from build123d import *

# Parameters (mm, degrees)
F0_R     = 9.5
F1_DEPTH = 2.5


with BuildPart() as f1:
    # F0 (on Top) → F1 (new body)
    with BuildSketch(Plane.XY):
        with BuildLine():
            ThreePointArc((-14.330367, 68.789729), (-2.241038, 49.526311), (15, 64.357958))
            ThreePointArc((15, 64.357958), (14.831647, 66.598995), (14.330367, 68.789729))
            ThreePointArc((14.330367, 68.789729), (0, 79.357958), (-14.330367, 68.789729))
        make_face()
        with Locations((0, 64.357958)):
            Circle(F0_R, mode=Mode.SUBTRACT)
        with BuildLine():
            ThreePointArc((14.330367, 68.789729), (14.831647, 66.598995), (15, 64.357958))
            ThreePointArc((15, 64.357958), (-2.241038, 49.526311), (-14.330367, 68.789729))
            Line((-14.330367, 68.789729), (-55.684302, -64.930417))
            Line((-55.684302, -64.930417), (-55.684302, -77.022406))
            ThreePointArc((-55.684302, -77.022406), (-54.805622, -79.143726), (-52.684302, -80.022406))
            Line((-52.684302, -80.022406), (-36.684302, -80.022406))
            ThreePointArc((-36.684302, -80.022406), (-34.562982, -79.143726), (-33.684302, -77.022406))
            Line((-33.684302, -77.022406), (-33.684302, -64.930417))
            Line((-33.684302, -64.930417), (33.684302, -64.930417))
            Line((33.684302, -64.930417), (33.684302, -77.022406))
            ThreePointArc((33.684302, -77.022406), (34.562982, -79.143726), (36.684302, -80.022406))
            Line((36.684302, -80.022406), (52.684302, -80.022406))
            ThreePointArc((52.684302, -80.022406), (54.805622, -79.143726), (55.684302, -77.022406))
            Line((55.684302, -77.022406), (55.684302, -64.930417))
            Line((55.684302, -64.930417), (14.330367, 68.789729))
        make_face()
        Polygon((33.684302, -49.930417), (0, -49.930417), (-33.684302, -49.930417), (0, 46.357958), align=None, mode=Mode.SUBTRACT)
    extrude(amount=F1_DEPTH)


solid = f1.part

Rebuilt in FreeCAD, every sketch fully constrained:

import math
import FreeCAD as App
import Part
import Sketcher


def add_polygon(sketch, points):
    """Adds a closed chain of lines whose ends are joined by coincident constraints."""
    first, n = sketch.GeometryCount, len(points)
    for a, b in zip(points, points[1:] + points[:1]):
        sketch.addGeometry(Part.LineSegment(App.Vector(*a, 0), App.Vector(*b, 0)), False)
    for i in range(n):
        sketch.addConstraint(Sketcher.Constraint("Coincident", first + i, 2, first + (i + 1) % n, 1))

doc = App.newDocument("Part")
body = doc.addObject("PartDesign::Body", "Body")

# Sketch on XY plane
sketch1 = body.newObject("Sketcher::SketchObject", "Sketch")
sketch1.AttachmentSupport = (doc.getObject("XY_Plane"), [""])
sketch1.MapMode = "FlatFace"
sketch1.addGeometry(Part.ArcOfCircle(Part.Circle(App.Vector(0, 64.357957, 0), App.Vector(0, 0, 1), 15.000001), math.radians(17.184609), math.radians(162.815391)), False)  # 0
sketch1.addGeometry(Part.LineSegment(App.Vector(-14.330367, 68.789729, 0), App.Vector(-55.684302, -64.930417, 0)), False)  # 1
sketch1.addGeometry(Part.LineSegment(App.Vector(-55.684302, -64.930417, 0), App.Vector(-55.684302, -77.022406, 0)), False)  # 2
sketch1.addGeometry(Part.ArcOfCircle(Part.Circle(App.Vector(-52.684301, -77.022405, 0), App.Vector(0, 0, 1), 3.000001), math.radians(-179.999978), math.radians(-90.000022)), False)  # 3
sketch1.addGeometry(Part.LineSegment(App.Vector(-52.684302, -80.022406, 0), App.Vector(-36.684302, -80.022406, 0)), False)  # 4
sketch1.addGeometry(Part.ArcOfCircle(Part.Circle(App.Vector(-36.684303, -77.022405, 0), App.Vector(0, 0, 1), 3.000001), math.radians(-89.999978), math.radians(-0.000022)), False)  # 5
sketch1.addGeometry(Part.LineSegment(App.Vector(-33.684302, -77.022406, 0), App.Vector(-33.684302, -64.930417, 0)), False)  # 6
sketch1.addGeometry(Part.LineSegment(App.Vector(-33.684302, -64.930417, 0), App.Vector(33.684302, -64.930417, 0)), False)  # 7
sketch1.addGeometry(Part.LineSegment(App.Vector(33.684302, -64.930417, 0), App.Vector(33.684302, -77.022406, 0)), False)  # 8
sketch1.addGeometry(Part.ArcOfCircle(Part.Circle(App.Vector(36.684303, -77.022405, 0), App.Vector(0, 0, 1), 3.000001), math.radians(-179.999978), math.radians(-90.000022)), False)  # 9
sketch1.addGeometry(Part.LineSegment(App.Vector(36.684302, -80.022406, 0), App.Vector(52.684302, -80.022406, 0)), False)  # 10
sketch1.addGeometry(Part.ArcOfCircle(Part.Circle(App.Vector(52.684301, -77.022405, 0), App.Vector(0, 0, 1), 3.000001), math.radians(-89.999978), math.radians(-0.000022)), False)  # 11
sketch1.addGeometry(Part.LineSegment(App.Vector(55.684302, -77.022406, 0), App.Vector(55.684302, -64.930417, 0)), False)  # 12
sketch1.addGeometry(Part.LineSegment(App.Vector(55.684302, -64.930417, 0), App.Vector(14.330367, 68.789729, 0)), False)  # 13
add_polygon(sketch1, [(0, 46.357958), (33.684302, -49.930417), (-33.684302, -49.930417)])  # lines 14-16
sketch1.addGeometry(Part.Circle(App.Vector(0, 64.357958, 0), App.Vector(0, 0, 1), 9.5), False)  # 17
sketch1.addConstraint(Sketcher.Constraint("Tangent", 0, 2, 1, 1))
sketch1.addConstraint(Sketcher.Constraint("Coincident", 1, 2, 2, 1))
sketch1.addConstraint(Sketcher.Constraint("Tangent", 2, 2, 3, 1))
sketch1.addConstraint(Sketcher.Constraint("Tangent", 3, 2, 4, 1))
sketch1.addConstraint(Sketcher.Constraint("Tangent", 4, 2, 5, 1))
sketch1.addConstraint(Sketcher.Constraint("Tangent", 5, 2, 6, 1))
sketch1.addConstraint(Sketcher.Constraint("Coincident", 6, 2, 7, 1))
sketch1.addConstraint(Sketcher.Constraint("Coincident", 7, 2, 8, 1))
sketch1.addConstraint(Sketcher.Constraint("Tangent", 8, 2, 9, 1))
sketch1.addConstraint(Sketcher.Constraint("Tangent", 9, 2, 10, 1))
sketch1.addConstraint(Sketcher.Constraint("Tangent", 10, 2, 11, 1))
sketch1.addConstraint(Sketcher.Constraint("Tangent", 11, 2, 12, 1))
sketch1.addConstraint(Sketcher.Constraint("Coincident", 12, 2, 13, 1))
sketch1.addConstraint(Sketcher.Constraint("Tangent", 13, 2, 0, 1))
sketch1.addConstraint(Sketcher.Constraint("Vertical", 2))
sketch1.addConstraint(Sketcher.Constraint("Horizontal", 4))
sketch1.addConstraint(Sketcher.Constraint("Vertical", 6))
sketch1.addConstraint(Sketcher.Constraint("Horizontal", 7))
sketch1.addConstraint(Sketcher.Constraint("Vertical", 8))
sketch1.addConstraint(Sketcher.Constraint("Horizontal", 10))
sketch1.addConstraint(Sketcher.Constraint("Vertical", 12))
sketch1.addConstraint(Sketcher.Constraint("Horizontal", 15))
sketch1.addConstraint(Sketcher.Constraint("Coincident", 17, 3, 0, 3))
sketch1.addConstraint(Sketcher.Constraint("Equal", 3, 5))
sketch1.addConstraint(Sketcher.Constraint("Equal", 5, 9))
sketch1.addConstraint(Sketcher.Constraint("Equal", 9, 11))
sketch1.addConstraint(Sketcher.Constraint("Symmetric", 5, 3, 9, 3, -2))
sketch1.addConstraint(Sketcher.Constraint("Symmetric", 1, 2, 12, 2, -2))
sketch1.addConstraint(Sketcher.Constraint("PointOnObject", 0, 3, -2))
sketch1.addConstraint(Sketcher.Constraint("PointOnObject", 16, 2, -2))
sketch1.addConstraint(Sketcher.Constraint("Horizontal", 1, 2, 6, 2))
sketch1.addConstraint(Sketcher.Constraint("Vertical", 8, 2, 14, 2))
sketch1.addConstraint(Sketcher.Constraint("Vertical", 6, 2, 15, 2))
sketch1.addConstraint(Sketcher.Constraint("Diameter", 17, 19.0))
sketch1.addConstraint(Sketcher.Constraint("Radius", 0, 15.000001))
sketch1.addConstraint(Sketcher.Constraint("Radius", 3, 3.000001))
sketch1.addConstraint(Sketcher.Constraint("DistanceX", 4, 1, 4, 2, 16.0))
sketch1.addConstraint(Sketcher.Constraint("DistanceY", 7, 2, 14, 2, 15.0))
sketch1.addConstraint(Sketcher.Constraint("DistanceY", 16, 2, 0, 3, 17.999999))
sketch1.addConstraint(Sketcher.Constraint("DistanceY", 2, 2, 2, 1, 12.091989))
sketch1.addConstraint(Sketcher.Constraint("DistanceX", 3, 3, -1, 1, 52.684301))
sketch1.addConstraint(Sketcher.Constraint("Distance", 1, 139.968659))
sketch1.addConstraint(Sketcher.Constraint("DistanceY", -1, 1, 0, 2, 68.789729))
pad1 = body.newObject("PartDesign::Pad", "Pad")
pad1.Profile = sketch1
pad1.Length = 2.5

doc.recompute()
